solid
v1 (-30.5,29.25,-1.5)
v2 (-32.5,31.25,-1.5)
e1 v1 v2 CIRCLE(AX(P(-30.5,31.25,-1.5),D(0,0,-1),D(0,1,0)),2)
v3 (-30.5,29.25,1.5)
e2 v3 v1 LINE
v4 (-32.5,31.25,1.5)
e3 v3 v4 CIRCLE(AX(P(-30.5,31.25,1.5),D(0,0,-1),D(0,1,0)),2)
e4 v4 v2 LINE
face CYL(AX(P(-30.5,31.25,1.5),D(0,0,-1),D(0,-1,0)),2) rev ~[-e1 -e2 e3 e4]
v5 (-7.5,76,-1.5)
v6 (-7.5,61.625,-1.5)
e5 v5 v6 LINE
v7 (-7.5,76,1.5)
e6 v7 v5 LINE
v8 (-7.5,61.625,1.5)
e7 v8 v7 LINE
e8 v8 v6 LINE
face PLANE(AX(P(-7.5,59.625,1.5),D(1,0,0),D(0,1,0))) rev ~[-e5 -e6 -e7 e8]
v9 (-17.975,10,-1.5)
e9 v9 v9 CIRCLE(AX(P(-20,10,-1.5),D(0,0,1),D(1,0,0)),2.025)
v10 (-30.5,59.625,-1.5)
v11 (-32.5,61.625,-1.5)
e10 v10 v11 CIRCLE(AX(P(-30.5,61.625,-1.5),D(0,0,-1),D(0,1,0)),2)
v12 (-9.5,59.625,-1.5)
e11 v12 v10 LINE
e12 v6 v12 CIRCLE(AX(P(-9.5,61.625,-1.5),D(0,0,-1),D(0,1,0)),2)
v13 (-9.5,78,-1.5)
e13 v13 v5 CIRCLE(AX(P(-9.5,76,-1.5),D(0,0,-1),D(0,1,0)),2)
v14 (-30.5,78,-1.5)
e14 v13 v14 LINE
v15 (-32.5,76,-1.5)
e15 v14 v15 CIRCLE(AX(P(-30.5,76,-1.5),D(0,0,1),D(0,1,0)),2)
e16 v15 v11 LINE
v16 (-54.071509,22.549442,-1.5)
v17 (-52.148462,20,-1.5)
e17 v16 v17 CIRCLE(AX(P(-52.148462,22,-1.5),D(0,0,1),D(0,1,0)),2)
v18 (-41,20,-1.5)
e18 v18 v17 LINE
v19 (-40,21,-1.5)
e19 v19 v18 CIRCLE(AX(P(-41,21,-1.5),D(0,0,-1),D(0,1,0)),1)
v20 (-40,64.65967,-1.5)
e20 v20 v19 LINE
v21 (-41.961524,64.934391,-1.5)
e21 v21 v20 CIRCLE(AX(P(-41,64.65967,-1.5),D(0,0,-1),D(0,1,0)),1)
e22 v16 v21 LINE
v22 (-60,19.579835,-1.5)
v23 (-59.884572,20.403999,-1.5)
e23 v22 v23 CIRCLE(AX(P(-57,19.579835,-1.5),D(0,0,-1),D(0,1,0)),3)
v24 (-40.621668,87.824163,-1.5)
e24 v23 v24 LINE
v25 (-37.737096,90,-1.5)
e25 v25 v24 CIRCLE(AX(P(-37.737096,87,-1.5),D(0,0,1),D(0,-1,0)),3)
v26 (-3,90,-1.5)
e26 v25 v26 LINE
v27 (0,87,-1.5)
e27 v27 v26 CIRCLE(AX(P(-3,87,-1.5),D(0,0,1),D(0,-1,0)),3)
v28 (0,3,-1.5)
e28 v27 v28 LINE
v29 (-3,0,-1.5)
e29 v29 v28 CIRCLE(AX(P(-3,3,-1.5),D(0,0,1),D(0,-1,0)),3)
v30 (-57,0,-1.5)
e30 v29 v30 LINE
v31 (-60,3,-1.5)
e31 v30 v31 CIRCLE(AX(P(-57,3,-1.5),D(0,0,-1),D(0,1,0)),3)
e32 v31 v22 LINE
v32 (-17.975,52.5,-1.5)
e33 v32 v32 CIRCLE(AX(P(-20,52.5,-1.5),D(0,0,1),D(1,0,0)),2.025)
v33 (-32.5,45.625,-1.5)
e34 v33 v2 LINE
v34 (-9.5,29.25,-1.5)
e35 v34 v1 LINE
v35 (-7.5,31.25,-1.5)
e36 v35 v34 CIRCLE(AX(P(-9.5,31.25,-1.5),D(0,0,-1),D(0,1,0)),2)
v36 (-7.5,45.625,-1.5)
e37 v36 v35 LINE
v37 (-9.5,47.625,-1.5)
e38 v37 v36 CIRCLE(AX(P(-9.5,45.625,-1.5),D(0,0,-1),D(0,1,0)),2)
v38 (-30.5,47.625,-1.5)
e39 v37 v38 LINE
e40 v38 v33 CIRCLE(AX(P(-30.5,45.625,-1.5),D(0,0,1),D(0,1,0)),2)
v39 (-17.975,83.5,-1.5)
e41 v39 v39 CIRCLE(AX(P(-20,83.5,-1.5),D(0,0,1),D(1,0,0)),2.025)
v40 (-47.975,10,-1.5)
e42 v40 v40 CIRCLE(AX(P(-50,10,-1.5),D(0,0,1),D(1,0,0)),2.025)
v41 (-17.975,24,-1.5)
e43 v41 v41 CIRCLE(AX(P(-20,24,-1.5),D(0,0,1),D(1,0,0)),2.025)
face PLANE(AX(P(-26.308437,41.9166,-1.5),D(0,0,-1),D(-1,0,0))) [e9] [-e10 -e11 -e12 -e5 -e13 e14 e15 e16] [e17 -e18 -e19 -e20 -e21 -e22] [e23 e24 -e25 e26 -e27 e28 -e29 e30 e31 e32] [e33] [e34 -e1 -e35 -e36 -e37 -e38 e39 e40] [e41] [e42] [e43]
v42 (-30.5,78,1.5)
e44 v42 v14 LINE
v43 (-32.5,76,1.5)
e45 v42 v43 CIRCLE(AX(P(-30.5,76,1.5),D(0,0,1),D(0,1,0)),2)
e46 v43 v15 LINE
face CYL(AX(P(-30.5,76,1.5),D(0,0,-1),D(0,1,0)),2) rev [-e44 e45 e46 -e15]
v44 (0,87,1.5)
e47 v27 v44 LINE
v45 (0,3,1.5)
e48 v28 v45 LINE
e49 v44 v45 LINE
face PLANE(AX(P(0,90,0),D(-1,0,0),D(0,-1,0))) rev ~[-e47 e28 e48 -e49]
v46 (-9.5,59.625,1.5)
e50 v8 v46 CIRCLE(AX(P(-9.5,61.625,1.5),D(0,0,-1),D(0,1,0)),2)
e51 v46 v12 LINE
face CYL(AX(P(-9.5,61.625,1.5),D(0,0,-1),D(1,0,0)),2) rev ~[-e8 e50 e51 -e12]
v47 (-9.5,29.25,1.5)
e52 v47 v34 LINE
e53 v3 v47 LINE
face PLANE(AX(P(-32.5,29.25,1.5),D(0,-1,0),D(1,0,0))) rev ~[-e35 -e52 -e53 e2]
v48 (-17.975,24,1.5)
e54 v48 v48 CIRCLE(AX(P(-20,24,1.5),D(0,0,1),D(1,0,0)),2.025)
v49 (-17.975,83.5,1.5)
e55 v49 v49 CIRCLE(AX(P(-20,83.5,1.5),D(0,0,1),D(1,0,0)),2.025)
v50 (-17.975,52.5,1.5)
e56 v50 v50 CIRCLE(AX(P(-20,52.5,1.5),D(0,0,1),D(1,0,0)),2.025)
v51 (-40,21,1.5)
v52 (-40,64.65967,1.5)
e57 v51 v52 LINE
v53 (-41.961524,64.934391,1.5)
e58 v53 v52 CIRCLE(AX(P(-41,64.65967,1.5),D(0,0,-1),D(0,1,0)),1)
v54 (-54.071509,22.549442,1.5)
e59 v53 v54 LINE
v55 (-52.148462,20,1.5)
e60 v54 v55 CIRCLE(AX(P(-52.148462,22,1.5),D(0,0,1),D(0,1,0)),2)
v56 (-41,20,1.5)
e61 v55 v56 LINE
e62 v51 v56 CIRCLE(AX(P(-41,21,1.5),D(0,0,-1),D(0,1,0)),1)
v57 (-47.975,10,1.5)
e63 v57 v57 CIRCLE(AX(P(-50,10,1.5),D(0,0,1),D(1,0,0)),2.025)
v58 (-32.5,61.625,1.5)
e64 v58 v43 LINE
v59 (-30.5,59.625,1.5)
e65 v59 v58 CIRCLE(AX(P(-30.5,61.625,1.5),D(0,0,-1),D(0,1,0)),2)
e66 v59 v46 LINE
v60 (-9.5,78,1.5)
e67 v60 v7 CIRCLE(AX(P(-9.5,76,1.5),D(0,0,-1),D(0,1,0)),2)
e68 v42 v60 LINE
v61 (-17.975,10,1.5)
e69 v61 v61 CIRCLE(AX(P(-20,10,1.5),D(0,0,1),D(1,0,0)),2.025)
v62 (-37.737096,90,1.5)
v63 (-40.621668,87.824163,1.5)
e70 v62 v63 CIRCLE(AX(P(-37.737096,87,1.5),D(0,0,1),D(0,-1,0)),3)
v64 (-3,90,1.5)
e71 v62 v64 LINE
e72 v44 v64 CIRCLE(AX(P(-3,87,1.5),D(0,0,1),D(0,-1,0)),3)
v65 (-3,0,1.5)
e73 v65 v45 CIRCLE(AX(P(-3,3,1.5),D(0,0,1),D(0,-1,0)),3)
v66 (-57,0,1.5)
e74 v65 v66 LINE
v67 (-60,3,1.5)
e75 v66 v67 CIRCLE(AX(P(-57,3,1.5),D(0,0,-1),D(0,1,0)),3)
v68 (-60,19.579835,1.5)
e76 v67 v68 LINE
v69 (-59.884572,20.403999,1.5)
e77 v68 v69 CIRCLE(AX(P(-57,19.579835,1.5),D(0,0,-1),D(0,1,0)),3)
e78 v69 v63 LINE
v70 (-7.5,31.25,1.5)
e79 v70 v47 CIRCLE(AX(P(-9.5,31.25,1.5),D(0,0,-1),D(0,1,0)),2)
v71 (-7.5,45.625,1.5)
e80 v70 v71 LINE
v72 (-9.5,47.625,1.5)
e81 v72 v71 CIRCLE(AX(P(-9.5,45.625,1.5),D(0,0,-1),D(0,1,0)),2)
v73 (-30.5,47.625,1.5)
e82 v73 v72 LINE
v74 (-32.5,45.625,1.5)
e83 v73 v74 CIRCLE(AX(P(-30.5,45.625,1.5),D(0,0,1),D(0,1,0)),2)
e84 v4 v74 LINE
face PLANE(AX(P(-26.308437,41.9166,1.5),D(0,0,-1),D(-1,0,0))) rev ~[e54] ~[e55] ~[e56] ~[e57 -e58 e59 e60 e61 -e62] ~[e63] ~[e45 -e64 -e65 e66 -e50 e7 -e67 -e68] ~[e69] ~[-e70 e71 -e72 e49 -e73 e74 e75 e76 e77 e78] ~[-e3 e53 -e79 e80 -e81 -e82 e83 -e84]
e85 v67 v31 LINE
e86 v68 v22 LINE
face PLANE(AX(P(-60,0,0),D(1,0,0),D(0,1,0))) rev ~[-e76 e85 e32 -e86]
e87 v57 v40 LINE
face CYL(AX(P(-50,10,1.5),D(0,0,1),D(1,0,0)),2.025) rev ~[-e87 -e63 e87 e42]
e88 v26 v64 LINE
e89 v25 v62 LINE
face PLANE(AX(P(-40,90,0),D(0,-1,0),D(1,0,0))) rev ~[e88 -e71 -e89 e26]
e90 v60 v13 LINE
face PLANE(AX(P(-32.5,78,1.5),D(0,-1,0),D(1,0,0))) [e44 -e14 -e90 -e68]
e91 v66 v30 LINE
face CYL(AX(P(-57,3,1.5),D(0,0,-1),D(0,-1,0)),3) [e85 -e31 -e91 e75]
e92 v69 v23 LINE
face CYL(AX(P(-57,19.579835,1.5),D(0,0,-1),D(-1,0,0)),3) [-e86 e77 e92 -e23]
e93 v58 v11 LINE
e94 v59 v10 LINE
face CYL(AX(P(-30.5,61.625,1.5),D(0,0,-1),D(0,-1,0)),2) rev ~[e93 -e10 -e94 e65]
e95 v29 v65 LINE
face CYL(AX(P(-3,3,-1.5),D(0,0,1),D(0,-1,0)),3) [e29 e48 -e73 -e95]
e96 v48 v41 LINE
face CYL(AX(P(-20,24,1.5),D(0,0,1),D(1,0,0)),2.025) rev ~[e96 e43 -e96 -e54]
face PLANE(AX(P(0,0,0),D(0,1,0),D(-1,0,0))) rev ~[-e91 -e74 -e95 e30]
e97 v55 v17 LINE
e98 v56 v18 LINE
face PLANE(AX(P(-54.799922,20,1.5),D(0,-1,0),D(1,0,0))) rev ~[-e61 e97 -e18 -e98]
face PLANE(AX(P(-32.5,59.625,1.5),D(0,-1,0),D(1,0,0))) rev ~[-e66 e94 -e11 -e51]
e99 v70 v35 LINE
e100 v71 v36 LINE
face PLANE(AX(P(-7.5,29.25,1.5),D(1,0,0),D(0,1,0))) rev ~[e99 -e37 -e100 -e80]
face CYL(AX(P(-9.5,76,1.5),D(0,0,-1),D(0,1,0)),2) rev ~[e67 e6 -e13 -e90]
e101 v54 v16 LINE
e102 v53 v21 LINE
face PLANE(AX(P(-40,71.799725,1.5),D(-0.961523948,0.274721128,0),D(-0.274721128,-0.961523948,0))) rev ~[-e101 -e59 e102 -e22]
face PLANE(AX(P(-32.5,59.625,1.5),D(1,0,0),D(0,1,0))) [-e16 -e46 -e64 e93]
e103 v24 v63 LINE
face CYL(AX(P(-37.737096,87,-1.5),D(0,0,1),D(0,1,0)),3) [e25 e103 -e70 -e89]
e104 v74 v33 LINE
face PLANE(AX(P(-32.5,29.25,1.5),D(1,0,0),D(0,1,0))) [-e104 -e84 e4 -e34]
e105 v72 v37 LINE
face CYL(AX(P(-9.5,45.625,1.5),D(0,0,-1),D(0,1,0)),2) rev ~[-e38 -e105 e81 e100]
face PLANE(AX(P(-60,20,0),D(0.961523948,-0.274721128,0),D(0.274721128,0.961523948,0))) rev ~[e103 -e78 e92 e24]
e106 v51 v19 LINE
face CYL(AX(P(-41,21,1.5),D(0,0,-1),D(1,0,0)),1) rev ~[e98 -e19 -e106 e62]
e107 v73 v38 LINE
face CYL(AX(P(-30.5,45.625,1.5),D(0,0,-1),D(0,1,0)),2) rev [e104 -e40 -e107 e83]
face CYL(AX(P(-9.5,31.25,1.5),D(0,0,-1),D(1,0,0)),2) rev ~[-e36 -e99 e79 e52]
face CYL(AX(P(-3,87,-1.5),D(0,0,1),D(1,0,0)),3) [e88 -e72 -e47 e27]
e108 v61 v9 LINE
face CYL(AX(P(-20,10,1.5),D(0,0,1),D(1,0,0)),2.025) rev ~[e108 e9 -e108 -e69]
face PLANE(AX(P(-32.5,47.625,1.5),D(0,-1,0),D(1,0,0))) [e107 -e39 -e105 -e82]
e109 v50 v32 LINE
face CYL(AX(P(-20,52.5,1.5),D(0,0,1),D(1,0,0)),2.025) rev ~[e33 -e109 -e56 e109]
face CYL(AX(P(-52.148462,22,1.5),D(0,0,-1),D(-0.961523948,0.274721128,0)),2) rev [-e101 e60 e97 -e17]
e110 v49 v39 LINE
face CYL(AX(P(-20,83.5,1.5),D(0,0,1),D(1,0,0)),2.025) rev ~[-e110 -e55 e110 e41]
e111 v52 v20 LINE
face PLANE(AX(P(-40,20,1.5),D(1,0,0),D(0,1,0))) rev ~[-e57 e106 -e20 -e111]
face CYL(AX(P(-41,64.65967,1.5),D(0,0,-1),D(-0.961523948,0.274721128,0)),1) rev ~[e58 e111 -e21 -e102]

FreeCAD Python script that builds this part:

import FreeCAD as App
import Part
import Sketcher

V = App.Vector
Q = App.Units.Quantity


def edges_at(feature, points):
    """Names of the edges that pass closest to the given points."""
    edges = feature.Shape.Edges
    near = lambda p: min(range(len(edges)), key=lambda i: edges[i].distToShape(Part.Vertex(*p))[0])
    return sorted({f"Edge{near(p) + 1}" for p in points})

doc = App.newDocument("Part")
body = doc.addObject("PartDesign::Body", "Body")

# Sketch on XY plane
sketch1 = doc.addObject("Sketcher::SketchObject", "Sketch")
body.addObject(sketch1)
sketch1.AttachmentSupport = (doc.XY_Plane, [""])
sketch1.MapMode = "FlatFace"
sketch1.addGeometry(Part.LineSegment(V(-60, 0, 0), V(0, 0, 0)), False)
sketch1.addGeometry(Part.LineSegment(V(0, 0, 0), V(0, 90, 0)), False)
sketch1.addGeometry(Part.LineSegment(V(0, 90, 0), V(-40, 90, 0)), False)
sketch1.addGeometry(Part.LineSegment(V(-40, 90, 0), V(-60, 20, 0)), False)
sketch1.addGeometry(Part.LineSegment(V(-60, 20, 0), V(-60, 0, 0)), False)
sketch1.addConstraint(Sketcher.Constraint("Coincident", 0, 2, 1, 1))
sketch1.addConstraint(Sketcher.Constraint("Coincident", 1, 2, 2, 1))
sketch1.addConstraint(Sketcher.Constraint("Coincident", 2, 2, 3, 1))
sketch1.addConstraint(Sketcher.Constraint("Coincident", 3, 2, 4, 1))
sketch1.addConstraint(Sketcher.Constraint("Coincident", 4, 2, 0, 1))
sketch1.addConstraint(Sketcher.Constraint("Horizontal", 0))
sketch1.addConstraint(Sketcher.Constraint("Vertical", 1))
sketch1.addConstraint(Sketcher.Constraint("Horizontal", 2))
sketch1.addConstraint(Sketcher.Constraint("Vertical", 4))
sketch1.addConstraint(Sketcher.Constraint("Coincident", 0, 2, -1, 1))
sketch1.addConstraint(Sketcher.Constraint("DistanceX", 0, 1, 0, 2, Q("60 mm")))
sketch1.addConstraint(Sketcher.Constraint("DistanceX", 2, 2, 2, 1, Q("40 mm")))
sketch1.addConstraint(Sketcher.Constraint("DistanceY", 1, 1, 1, 2, Q("90 mm")))
sketch1.addConstraint(Sketcher.Constraint("DistanceY", 4, 2, 4, 1, Q("20 mm")))
pad1 = doc.addObject("PartDesign::Pad", "Pad")
body.addObject(pad1)
pad1.Profile = sketch1
pad1.Length = 3
pad1.Midplane = True

# Sketch on XY plane
sketch2 = doc.addObject("Sketcher::SketchObject", "Sketch001")
body.addObject(sketch2)
sketch2.AttachmentSupport = (doc.XY_Plane, [""])
sketch2.MapMode = "FlatFace"
sketch2.AttachmentOffset = App.Placement(V(0, 0, 1.5), App.Rotation())
sketch2.addGeometry(Part.LineSegment(V(-40, 72, 0), V(-55, 20, 0)), False)
sketch2.addGeometry(Part.LineSegment(V(-55, 20, 0), V(-40, 20, 0)), False)
sketch2.addGeometry(Part.LineSegment(V(-40, 20, 0), V(-40, 72, 0)), False)
sketch2.addConstraint(Sketcher.Constraint("Coincident", 0, 2, 1, 1))
sketch2.addConstraint(Sketcher.Constraint("Coincident", 1, 2, 2, 1))
sketch2.addConstraint(Sketcher.Constraint("Coincident", 2, 2, 0, 1))
sketch2.addConstraint(Sketcher.Constraint("Horizontal", 1))
sketch2.addConstraint(Sketcher.Constraint("Vertical", 2))
sketch2.addConstraint(Sketcher.Constraint("DistanceY", -1, 1, 0, 2, Q("20 mm")))
sketch2.addConstraint(Sketcher.Constraint("DistanceX", 1, 2, -1, 1, Q("40 mm")))
sketch2.addConstraint(Sketcher.Constraint("DistanceX", 1, 1, 1, 2, Q("14.799922 mm")))
sketch2.addConstraint(Sketcher.Constraint("DistanceY", 2, 1, 2, 2, Q("51.799725 mm")))
pocket1 = doc.addObject("PartDesign::Pocket", "Pocket")
body.addObject(pocket1)
pocket1.Profile = sketch2
pocket1.Type = "ThroughAll"
doc.recompute()

fillet = doc.addObject("PartDesign::Fillet", "Fillet")
body.addObject(fillet)
fillet.Base = (pocket1, edges_at(pocket1, [(-40, 71.8, 0), (-40, 20, 0)]))
fillet.Radius = 1

# Sketch on XY plane
sketch3 = doc.addObject("Sketcher::SketchObject", "Sketch002")
body.addObject(sketch3)
sketch3.AttachmentSupport = (doc.XY_Plane, [""])
sketch3.MapMode = "FlatFace"
sketch3.AttachmentOffset = App.Placement(V(0, 0, 1.5), App.Rotation())
sketch3.addGeometry(Part.LineSegment(V(-32, 78, 0), V(-32, 60, 0)), False)
sketch3.addGeometry(Part.LineSegment(V(-32, 60, 0), V(-8, 60, 0)), False)
sketch3.addGeometry(Part.LineSegment(V(-8, 60, 0), V(-8, 78, 0)), False)
sketch3.addGeometry(Part.LineSegment(V(-8, 78, 0), V(-32, 78, 0)), False)
sketch3.addGeometry(Part.LineSegment(V(-32, 48, 0), V(-32, 29, 0)), False)
sketch3.addGeometry(Part.LineSegment(V(-32, 29, 0), V(-8, 29, 0)), False)
sketch3.addGeometry(Part.LineSegment(V(-8, 29, 0), V(-8, 48, 0)), False)
sketch3.addGeometry(Part.LineSegment(V(-8, 48, 0), V(-32, 48, 0)), False)
sketch3.addConstraint(Sketcher.Constraint("Coincident", 0, 2, 1, 1))
sketch3.addConstraint(Sketcher.Constraint("Coincident", 1, 2, 2, 1))
sketch3.addConstraint(Sketcher.Constraint("Coincident", 2, 2, 3, 1))
sketch3.addConstraint(Sketcher.Constraint("Coincident", 3, 2, 0, 1))
sketch3.addConstraint(Sketcher.Constraint("Coincident", 4, 2, 5, 1))
sketch3.addConstraint(Sketcher.Constraint("Coincident", 5, 2, 6, 1))
sketch3.addConstraint(Sketcher.Constraint("Coincident", 6, 2, 7, 1))
sketch3.addConstraint(Sketcher.Constraint("Coincident", 7, 2, 4, 1))
sketch3.addConstraint(Sketcher.Constraint("Vertical", 0))
sketch3.addConstraint(Sketcher.Constraint("Horizontal", 1))
sketch3.addConstraint(Sketcher.Constraint("Vertical", 2))
sketch3.addConstraint(Sketcher.Constraint("Horizontal", 3))
sketch3.addConstraint(Sketcher.Constraint("Vertical", 4))
sketch3.addConstraint(Sketcher.Constraint("Horizontal", 5))
sketch3.addConstraint(Sketcher.Constraint("Vertical", 6))
sketch3.addConstraint(Sketcher.Constraint("Horizontal", 7))
sketch3.addConstraint(Sketcher.Constraint("Vertical", 3, 2, 4, 2))
sketch3.addConstraint(Sketcher.Constraint("Vertical", 2, 2, 5, 2))
sketch3.addConstraint(Sketcher.Constraint("Equal", 2, 4))
sketch3.addConstraint(Sketcher.Constraint("DistanceX", 1, 1, 1, 2, Q("25 mm")))
sketch3.addConstraint(Sketcher.Constraint("DistanceY", -1, 1, 2, 2, Q("78 mm")))
sketch3.addConstraint(Sketcher.Constraint("DistanceY", 6, 2, 1, 2, Q("12 mm")))
sketch3.addConstraint(Sketcher.Constraint("DistanceX", 0, 2, -1, 1, Q("32.5 mm")))
sketch3.addConstraint(Sketcher.Constraint("DistanceY", 0, 2, 0, 1, Q("18.375 mm")))
pocket2 = doc.addObject("PartDesign::Pocket", "Pocket001")
body.addObject(pocket2)
pocket2.Profile = sketch3
pocket2.Type = "ThroughAll"
doc.recompute()

fillet2 = doc.addObject("PartDesign::Fillet", "Fillet001")
body.addObject(fillet2)
fillet2.Base = (pocket2, edges_at(pocket2, [
    (-7.5, 78, 0),
    (-7.5, 59.625, 0),
    (-32.5, 59.625, 0),
    (-32.5, 78, 0),
    (-7.5, 47.625, 0),
    (-7.5, 29.25, 0),
    (-32.5, 29.25, 0),
    (-32.5, 47.625, 0),
]))
fillet2.Radius = 2

# Sketch on XY plane
sketch4 = doc.addObject("Sketcher::SketchObject", "Sketch003")
body.addObject(sketch4)
sketch4.AttachmentSupport = (doc.XY_Plane, [""])
sketch4.MapMode = "FlatFace"
sketch4.AttachmentOffset = App.Placement(V(0, 0, 1.5), App.Rotation())
sketch4.addGeometry(Part.Circle(V(-50, 10, 0), V(0, 0, 1), 2), False)
sketch4.addGeometry(Part.Circle(V(-20, 10, 0), V(0, 0, 1), 2), False)
sketch4.addGeometry(Part.Circle(V(-20, 24, 0), V(0, 0, 1), 2), False)
sketch4.addGeometry(Part.Circle(V(-20, 52.5, 0), V(0, 0, 1), 2), False)
sketch4.addGeometry(Part.Circle(V(-20, 83.5, 0), V(0, 0, 1), 2), False)
sketch4.addConstraint(Sketcher.Constraint("Equal", 0, 1))
sketch4.addConstraint(Sketcher.Constraint("Equal", 1, 2))
sketch4.addConstraint(Sketcher.Constraint("Equal", 2, 3))
sketch4.addConstraint(Sketcher.Constraint("Equal", 3, 4))
sketch4.addConstraint(Sketcher.Constraint("Horizontal", 0, 3, 1, 3))
sketch4.addConstraint(Sketcher.Constraint("Vertical", 1, 3, 2, 3))
sketch4.addConstraint(Sketcher.Constraint("Vertical", 2, 3, 3, 3))
sketch4.addConstraint(Sketcher.Constraint("Vertical", 3, 3, 4, 3))
sketch4.addConstraint(Sketcher.Constraint("Diameter", 0, Q("4.05 mm")))
sketch4.addConstraint(Sketcher.Constraint("DistanceX", 0, 3, -1, 1, Q("50 mm")))
sketch4.addConstraint(Sketcher.Constraint("DistanceY", -1, 1, 0, 3, Q("10 mm")))
sketch4.addConstraint(Sketcher.Constraint("DistanceX", 1, 3, -1, 1, Q("20 mm")))
sketch4.addConstraint(Sketcher.Constraint("DistanceY", -1, 1, 2, 3, Q("24 mm")))
sketch4.addConstraint(Sketcher.Constraint("DistanceY", 3, 3, 4, 3, Q("31 mm")))
sketch4.addConstraint(Sketcher.Constraint("DistanceY", -1, 1, 3, 3, Q("52.5 mm")))
pocket3 = doc.addObject("PartDesign::Pocket", "Pocket002")
body.addObject(pocket3)
pocket3.Profile = sketch4
pocket3.Length = 10
doc.recompute()

fillet3 = doc.addObject("PartDesign::Fillet", "Fillet002")
body.addObject(fillet3)
fillet3.Base = (pocket3, edges_at(pocket3, [
    (0, 0, 0),
    (-60, 0, 0),
    (-60, 20, 0),
    (-40, 90, 0),
    (0, 90, 0),
]))
fillet3.Radius = 3
doc.recompute()

fillet4 = doc.addObject("PartDesign::Fillet", "Fillet003")
body.addObject(fillet4)
fillet4.Base = (fillet3, edges_at(fillet3, [(-54.8, 20, 0)]))
fillet4.Radius = 2

doc.recompute()
